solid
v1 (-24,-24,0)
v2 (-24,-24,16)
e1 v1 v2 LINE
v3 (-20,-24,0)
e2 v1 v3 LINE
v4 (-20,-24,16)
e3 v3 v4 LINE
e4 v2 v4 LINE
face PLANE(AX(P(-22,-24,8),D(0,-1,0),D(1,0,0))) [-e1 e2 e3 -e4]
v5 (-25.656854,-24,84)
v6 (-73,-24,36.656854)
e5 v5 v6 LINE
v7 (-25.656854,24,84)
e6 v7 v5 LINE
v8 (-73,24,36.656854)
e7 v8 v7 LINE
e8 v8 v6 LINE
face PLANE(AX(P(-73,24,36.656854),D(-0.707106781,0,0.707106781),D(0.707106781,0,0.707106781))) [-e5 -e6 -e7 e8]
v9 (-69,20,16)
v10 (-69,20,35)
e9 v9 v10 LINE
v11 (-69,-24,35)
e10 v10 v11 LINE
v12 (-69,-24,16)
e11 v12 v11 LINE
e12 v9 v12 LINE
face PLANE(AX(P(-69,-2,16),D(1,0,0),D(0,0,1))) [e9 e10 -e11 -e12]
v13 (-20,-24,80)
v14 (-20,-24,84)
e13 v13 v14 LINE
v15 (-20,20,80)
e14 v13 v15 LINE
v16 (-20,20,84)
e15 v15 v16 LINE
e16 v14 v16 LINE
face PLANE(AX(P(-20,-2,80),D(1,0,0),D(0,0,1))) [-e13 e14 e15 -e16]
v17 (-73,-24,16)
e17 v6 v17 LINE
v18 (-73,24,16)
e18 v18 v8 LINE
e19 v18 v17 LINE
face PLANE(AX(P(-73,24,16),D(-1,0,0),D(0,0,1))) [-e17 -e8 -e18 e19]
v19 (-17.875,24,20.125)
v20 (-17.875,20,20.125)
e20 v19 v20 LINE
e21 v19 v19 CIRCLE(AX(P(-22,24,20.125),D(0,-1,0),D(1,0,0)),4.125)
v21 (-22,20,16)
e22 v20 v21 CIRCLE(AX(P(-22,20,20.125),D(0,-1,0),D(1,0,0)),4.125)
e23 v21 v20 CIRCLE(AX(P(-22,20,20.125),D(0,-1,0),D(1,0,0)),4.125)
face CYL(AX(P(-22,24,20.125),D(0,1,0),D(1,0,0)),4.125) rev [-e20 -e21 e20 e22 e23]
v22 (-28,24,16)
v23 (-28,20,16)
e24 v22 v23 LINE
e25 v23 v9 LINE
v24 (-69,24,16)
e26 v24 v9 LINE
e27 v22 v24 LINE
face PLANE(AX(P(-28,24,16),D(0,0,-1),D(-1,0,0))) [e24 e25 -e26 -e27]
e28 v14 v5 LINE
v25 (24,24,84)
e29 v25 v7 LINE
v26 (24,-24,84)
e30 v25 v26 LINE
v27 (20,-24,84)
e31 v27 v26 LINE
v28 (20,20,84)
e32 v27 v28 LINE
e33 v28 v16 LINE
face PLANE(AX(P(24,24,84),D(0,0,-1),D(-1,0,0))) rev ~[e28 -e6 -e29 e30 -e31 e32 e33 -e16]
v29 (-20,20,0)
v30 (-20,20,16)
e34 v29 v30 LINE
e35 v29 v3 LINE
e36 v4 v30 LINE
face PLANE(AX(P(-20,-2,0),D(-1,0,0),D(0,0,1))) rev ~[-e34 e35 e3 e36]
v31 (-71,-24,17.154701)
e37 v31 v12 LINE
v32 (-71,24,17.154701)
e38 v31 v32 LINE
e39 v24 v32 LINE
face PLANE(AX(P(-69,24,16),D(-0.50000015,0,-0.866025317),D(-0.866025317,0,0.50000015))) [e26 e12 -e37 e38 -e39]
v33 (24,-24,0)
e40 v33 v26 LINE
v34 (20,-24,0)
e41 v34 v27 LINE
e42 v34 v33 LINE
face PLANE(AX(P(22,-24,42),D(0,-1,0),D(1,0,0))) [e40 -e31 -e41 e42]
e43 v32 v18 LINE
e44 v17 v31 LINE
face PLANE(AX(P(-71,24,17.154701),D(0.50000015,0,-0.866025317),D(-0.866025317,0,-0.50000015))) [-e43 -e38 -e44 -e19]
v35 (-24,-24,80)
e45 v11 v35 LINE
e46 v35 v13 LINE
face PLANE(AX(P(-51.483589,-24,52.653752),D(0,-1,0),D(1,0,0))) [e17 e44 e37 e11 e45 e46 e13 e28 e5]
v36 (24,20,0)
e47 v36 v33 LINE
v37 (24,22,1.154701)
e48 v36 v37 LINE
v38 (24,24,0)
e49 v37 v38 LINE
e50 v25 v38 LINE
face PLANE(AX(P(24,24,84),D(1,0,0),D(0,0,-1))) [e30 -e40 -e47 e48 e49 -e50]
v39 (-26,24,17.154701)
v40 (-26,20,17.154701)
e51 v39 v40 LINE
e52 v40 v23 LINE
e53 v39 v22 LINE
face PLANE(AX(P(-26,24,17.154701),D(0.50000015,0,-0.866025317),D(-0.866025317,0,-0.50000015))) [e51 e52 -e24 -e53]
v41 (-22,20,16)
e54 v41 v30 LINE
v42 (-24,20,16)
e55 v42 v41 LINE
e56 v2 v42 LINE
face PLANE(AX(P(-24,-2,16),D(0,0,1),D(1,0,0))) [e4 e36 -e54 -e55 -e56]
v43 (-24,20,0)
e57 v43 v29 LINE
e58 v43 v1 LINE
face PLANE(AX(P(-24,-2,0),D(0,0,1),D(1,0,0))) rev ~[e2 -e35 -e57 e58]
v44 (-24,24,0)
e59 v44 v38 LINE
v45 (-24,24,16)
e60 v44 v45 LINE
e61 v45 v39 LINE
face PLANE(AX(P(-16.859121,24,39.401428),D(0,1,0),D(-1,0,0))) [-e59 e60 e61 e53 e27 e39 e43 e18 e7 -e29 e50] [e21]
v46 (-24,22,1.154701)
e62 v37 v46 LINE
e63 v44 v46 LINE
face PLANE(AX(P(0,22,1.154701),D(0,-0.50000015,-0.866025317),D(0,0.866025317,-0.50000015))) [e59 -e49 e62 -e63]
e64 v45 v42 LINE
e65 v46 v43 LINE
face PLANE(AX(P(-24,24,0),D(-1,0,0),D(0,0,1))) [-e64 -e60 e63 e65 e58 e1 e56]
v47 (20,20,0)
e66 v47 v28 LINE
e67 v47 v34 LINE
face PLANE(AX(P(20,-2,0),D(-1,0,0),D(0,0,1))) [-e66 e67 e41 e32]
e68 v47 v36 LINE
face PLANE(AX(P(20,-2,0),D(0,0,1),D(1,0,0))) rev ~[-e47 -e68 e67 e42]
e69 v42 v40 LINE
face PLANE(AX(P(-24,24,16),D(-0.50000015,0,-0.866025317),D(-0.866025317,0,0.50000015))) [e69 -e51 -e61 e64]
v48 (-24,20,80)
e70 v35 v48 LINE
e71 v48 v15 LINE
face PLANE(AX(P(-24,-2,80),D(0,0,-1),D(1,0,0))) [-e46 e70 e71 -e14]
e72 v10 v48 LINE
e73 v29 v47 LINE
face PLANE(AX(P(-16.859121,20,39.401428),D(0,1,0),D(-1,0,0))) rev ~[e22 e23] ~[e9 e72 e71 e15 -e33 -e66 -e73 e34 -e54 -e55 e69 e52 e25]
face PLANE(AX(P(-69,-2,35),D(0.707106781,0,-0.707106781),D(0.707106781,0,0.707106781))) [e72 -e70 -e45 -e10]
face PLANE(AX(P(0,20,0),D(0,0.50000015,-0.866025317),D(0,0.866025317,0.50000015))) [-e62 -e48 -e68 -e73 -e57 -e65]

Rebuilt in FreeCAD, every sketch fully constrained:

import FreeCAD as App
import Part
import Sketcher

V = App.Vector
Q = App.Units.Quantity

doc = App.newDocument("Part")
params = doc.addObject("Spreadsheet::Sheet", "Params")
for row, (alias, value) in enumerate([
    ("sketch1_width", "4 mm"),
    ("pad1_length", "50 mm"),
    ("sketch2_diameter", "8.25 mm"),
    ("sketch2_width", "48 mm"),
    ("sketch2_width2", "41 mm"),
    ("sketch2_height", "84 mm"),
    ("sketch2_height2", "16 mm"),
    ("pad2_length", "4 mm"),
    ("sketch3_width", "4 mm"),
    ("sketch3_height", "84 mm"),
    ("sketch3_height2", "16 mm"),
    ("sketch3_height3", "19 mm"),
    ("pad3_length", "44 mm"),
], start=1):
    params.set(f"A{row}", alias)
    params.set(f"B{row}", "=" + value)
    params.setAlias(f"B{row}", alias)

body = doc.addObject("PartDesign::Body", "Body")

# Sketch on YZ plane
sketch1 = body.newObject("Sketcher::SketchObject", "Sketch")
sketch1.AttachmentSupport = (doc.getObject("YZ_Plane"), [""])
sketch1.MapMode = "FlatFace"
sketch1.addGeometry([
    Part.LineSegment(V(-22, 1.2, 0), V(-24, 0, 0)),
    Part.LineSegment(V(-24, 0, 0), V(-20, 0, 0)),
    Part.LineSegment(V(-20, 0, 0), V(-22, 1.2, 0)),
], False)
sketch1.addConstraint([
    Sketcher.Constraint("Coincident", 0, 2, 1, 1),
    Sketcher.Constraint("Coincident", 1, 2, 2, 1),
    Sketcher.Constraint("Coincident", 2, 2, 0, 1),
    Sketcher.Constraint("Horizontal", 1),
    Sketcher.Constraint("PointOnObject", 0, 2, -1),
    Sketcher.Constraint("Equal", 0, 2),
    Sketcher.Constraint("DistanceX", 1, 1, 1, 2, Q("4 mm")),
    Sketcher.Constraint("Angle", 0, Q("-149.99999 deg")),
    Sketcher.Constraint("DistanceX", 0, 2, -1, 1, Q("24 mm")),
])
sketch1.setExpression("Constraints[6]", "Params.sketch1_width")
pad1 = body.newObject("PartDesign::Pad", "Pad")
pad1.Profile = sketch1
pad1.setExpression("Length", "Params.pad1_length")
pad1.Midplane = True
body2 = doc.addObject("PartDesign::Body", "Body001")
doc.recompute()

body.Placement = App.Placement(V(0, 44, 0), App.Rotation(V(0, 0, 1), 0))
boolean = body2.newObject("PartDesign::Boolean", "Boolean")
boolean.Type = "Fuse"
boolean.addObjects([body])
body3 = doc.addObject("PartDesign::Body", "Body002")

# Sketch on XZ plane
sketch2 = body3.newObject("Sketcher::SketchObject", "Sketch001")
sketch2.AttachmentSupport = (doc.getObject("XZ_Plane002"), [""])
sketch2.MapMode = "FlatFace"
sketch2.addGeometry([
    Part.LineSegment(V(-24, 0, 0), V(24, 0, 0)),  # 0
    Part.LineSegment(V(24, 0, 0), V(24, 84, 0)),  # 1
    Part.LineSegment(V(24, 84, 0), V(-25.7, 84, 0)),  # 2
    Part.LineSegment(V(-25.7, 84, 0), V(-73, 36.7, 0)),  # 3
    Part.LineSegment(V(-73, 36.7, 0), V(-73, 16, 0)),  # 4
    Part.LineSegment(V(-73, 16, 0), V(-71, 17.2, 0)),  # 5
    Part.LineSegment(V(-71, 17.2, 0), V(-69, 16, 0)),  # 6
    Part.LineSegment(V(-69, 16, 0), V(-28, 16, 0)),  # 7
    Part.LineSegment(V(-28, 16, 0), V(-26, 17.2, 0)),  # 8
    Part.LineSegment(V(-26, 17.2, 0), V(-24, 16, 0)),  # 9
    Part.LineSegment(V(-24, 16, 0), V(-24, 0, 0)),  # 10
    Part.Circle(V(-22, 20.1, 0), V(0, 0, 1), 4.1),  # 11
], False)
sketch2.addConstraint([
    Sketcher.Constraint("Coincident", 0, 2, 1, 1),
    Sketcher.Constraint("Coincident", 1, 2, 2, 1),
    Sketcher.Constraint("Coincident", 2, 2, 3, 1),
    Sketcher.Constraint("Coincident", 3, 2, 4, 1),
    Sketcher.Constraint("Coincident", 4, 2, 5, 1),
    Sketcher.Constraint("Coincident", 5, 2, 6, 1),
    Sketcher.Constraint("Coincident", 6, 2, 7, 1),
    Sketcher.Constraint("Coincident", 7, 2, 8, 1),
    Sketcher.Constraint("Coincident", 8, 2, 9, 1),
    Sketcher.Constraint("Coincident", 9, 2, 10, 1),
    Sketcher.Constraint("Coincident", 10, 2, 0, 1),
    Sketcher.Constraint("Horizontal", 0),
    Sketcher.Constraint("Vertical", 1),
    Sketcher.Constraint("Horizontal", 2),
    Sketcher.Constraint("Vertical", 4),
    Sketcher.Constraint("Horizontal", 7),
    Sketcher.Constraint("Vertical", 10),
    Sketcher.Constraint("Symmetric", 0, 2, 10, 2, -1, 1),
    Sketcher.Constraint("Parallel", 5, 8),
    Sketcher.Constraint("Parallel", 6, 9),
    Sketcher.Constraint("Horizontal", 4, 2, 6, 2),
    Sketcher.Constraint("Horizontal", 5, 2, 8, 2),
    Sketcher.Constraint("Horizontal", 7, 2, 9, 2),
    Sketcher.Constraint("Equal", 5, 6),
    Sketcher.Constraint("Diameter", 11, Q("8.25 mm")),
    Sketcher.Constraint("DistanceX", 0, 1, 0, 2, Q("48 mm")),
    Sketcher.Constraint("DistanceX", 7, 1, 7, 2, Q("41 mm")),
    Sketcher.Constraint("DistanceY", 1, 1, 1, 2, Q("84 mm")),
    Sketcher.Constraint("DistanceY", 10, 2, 10, 1, Q("16 mm")),
    Sketcher.Constraint("Angle", 3, Q("-135 deg")),
    Sketcher.Constraint("Angle", 5, Q("30.00001 deg")),
    Sketcher.Constraint("DistanceX", 11, 3, -1, 1, Q("22 mm")),
    Sketcher.Constraint("DistanceX", 3, 2, -1, 1, Q("73 mm")),
    Sketcher.Constraint("DistanceY", -1, 1, 11, 3, Q("20.125 mm")),
    Sketcher.Constraint("Distance", 3, Q("66.953319 mm")),
])
sketch2.setExpression("Constraints[24]", "Params.sketch2_diameter")
sketch2.setExpression("Constraints[25]", "Params.sketch2_width")
sketch2.setExpression("Constraints[26]", "Params.sketch2_width2")
sketch2.setExpression("Constraints[27]", "Params.sketch2_height")
sketch2.setExpression("Constraints[28]", "Params.sketch2_height2")
pad2 = body3.newObject("PartDesign::Pad", "Pad001")
pad2.Profile = sketch2
pad2.setExpression("Length", "Params.pad2_length")
body4 = doc.addObject("PartDesign::Body", "Body003")
doc.recompute()

body3.Placement = App.Placement(V(0, 24, 0), App.Rotation(V(0, 0, 1), 0))
boolean2 = body4.newObject("PartDesign::Boolean", "Boolean001")
boolean2.Type = "Fuse"
boolean2.addObjects([body3])
doc.recompute()

boolean3 = body4.newObject("PartDesign::Boolean", "Boolean002")
boolean3.Type = "Cut"
boolean3.addObjects([body2])
body5 = doc.addObject("PartDesign::Body", "Body004")
body5.AllowCompound = True

# Sketch on XZ plane
sketch3 = body5.newObject("Sketcher::SketchObject", "Sketch002")
sketch3.AttachmentSupport = (doc.getObject("XZ_Plane004"), [""])
sketch3.MapMode = "FlatFace"
sketch3.addGeometry([
    Part.LineSegment(V(20, 84, 0), V(20, 0, 0)),  # 0
    Part.LineSegment(V(20, 0, 0), V(24, 0, 0)),  # 1
    Part.LineSegment(V(24, 0, 0), V(24, 84, 0)),  # 2
    Part.LineSegment(V(24, 84, 0), V(20, 84, 0)),  # 3
    Part.LineSegment(V(-24, 16, 0), V(-24, 0, 0)),  # 4
    Part.LineSegment(V(-24, 0, 0), V(-20, 0, 0)),  # 5
    Part.LineSegment(V(-20, 0, 0), V(-20, 16, 0)),  # 6
    Part.LineSegment(V(-20, 16, 0), V(-24, 16, 0)),  # 7
    Part.LineSegment(V(-20, 84, 0), V(-25.7, 84, 0)),  # 8
    Part.LineSegment(V(-25.7, 84, 0), V(-73, 36.7, 0)),  # 9
    Part.LineSegment(V(-73, 36.7, 0), V(-73, 16, 0)),  # 10
    Part.LineSegment(V(-73, 16, 0), V(-71, 17.2, 0)),  # 11
    Part.LineSegment(V(-71, 17.2, 0), V(-69, 16, 0)),  # 12
    Part.LineSegment(V(-69, 16, 0), V(-69, 35, 0)),  # 13
    Part.LineSegment(V(-69, 35, 0), V(-24, 80, 0)),  # 14
    Part.LineSegment(V(-24, 80, 0), V(-20, 80, 0)),  # 15
    Part.LineSegment(V(-20, 80, 0), V(-20, 84, 0)),  # 16
], False)
sketch3.addConstraint([
    Sketcher.Constraint("Coincident", 0, 2, 1, 1),
    Sketcher.Constraint("Coincident", 1, 2, 2, 1),
    Sketcher.Constraint("Coincident", 2, 2, 3, 1),
    Sketcher.Constraint("Coincident", 3, 2, 0, 1),
    Sketcher.Constraint("Coincident", 4, 2, 5, 1),
    Sketcher.Constraint("Coincident", 5, 2, 6, 1),
    Sketcher.Constraint("Coincident", 6, 2, 7, 1),
    Sketcher.Constraint("Coincident", 7, 2, 4, 1),
    Sketcher.Constraint("Coincident", 8, 2, 9, 1),
    Sketcher.Constraint("Coincident", 9, 2, 10, 1),
    Sketcher.Constraint("Coincident", 10, 2, 11, 1),
    Sketcher.Constraint("Coincident", 11, 2, 12, 1),
    Sketcher.Constraint("Coincident", 12, 2, 13, 1),
    Sketcher.Constraint("Coincident", 13, 2, 14, 1),
    Sketcher.Constraint("Coincident", 14, 2, 15, 1),
    Sketcher.Constraint("Coincident", 15, 2, 16, 1),
    Sketcher.Constraint("Coincident", 16, 2, 8, 1),
    Sketcher.Constraint("Vertical", 0),
    Sketcher.Constraint("Horizontal", 1),
    Sketcher.Constraint("Vertical", 2),
    Sketcher.Constraint("Horizontal", 3),
    Sketcher.Constraint("Vertical", 4),
    Sketcher.Constraint("Horizontal", 5),
    Sketcher.Constraint("Vertical", 6),
    Sketcher.Constraint("Horizontal", 7),
    Sketcher.Constraint("Horizontal", 8),
    Sketcher.Constraint("Vertical", 10),
    Sketcher.Constraint("Vertical", 13),
    Sketcher.Constraint("Horizontal", 15),
    Sketcher.Constraint("Vertical", 16),
    Sketcher.Constraint("Symmetric", 1, 2, 4, 2, -1, 1),
    Sketcher.Constraint("Symmetric", 0, 2, 5, 2, -2),
    Sketcher.Constraint("Symmetric", 3, 2, 16, 2, -2),
    Sketcher.Constraint("Parallel", 9, 14),
    Sketcher.Constraint("Horizontal", 7, 2, 10, 2),
    Sketcher.Constraint("Horizontal", 10, 2, 12, 2),
    Sketcher.Constraint("Vertical", 7, 2, 14, 2),
    Sketcher.Constraint("Equal", 15, 16),
    Sketcher.Constraint("Equal", 11, 12),
    Sketcher.Constraint("DistanceX", 1, 1, 1, 2, Q("4 mm")),
    Sketcher.Constraint("DistanceY", 0, 2, 0, 1, Q("84 mm")),
    Sketcher.Constraint("DistanceY", 4, 2, 4, 1, Q("16 mm")),
    Sketcher.Constraint("DistanceY", 13, 1, 13, 2, Q("19 mm")),
    Sketcher.Constraint("Angle", 9, Q("-135 deg")),
    Sketcher.Constraint("Angle", 11, Q("30.00001 deg")),
    Sketcher.Constraint("DistanceX", -1, 1, 0, 2, Q("20 mm")),
    Sketcher.Constraint("DistanceX", 9, 2, -1, 1, Q("73 mm")),
    Sketcher.Constraint("Distance", 9, Q("66.953319 mm")),
])
sketch3.setExpression("Constraints[39]", "Params.sketch3_width")
sketch3.setExpression("Constraints[40]", "Params.sketch3_height")
sketch3.setExpression("Constraints[41]", "Params.sketch3_height2")
sketch3.setExpression("Constraints[42]", "Params.sketch3_height3")
pad3 = body5.newObject("PartDesign::Pad", "Pad002")
pad3.Profile = sketch3
pad3.setExpression("Length", "Params.pad3_length")
pad3.Midplane = True
body6 = doc.addObject("PartDesign::Body", "Body005")
body6.AllowCompound = True
doc.recompute()

body5.Placement = App.Placement(V(0, -2, 0), App.Rotation(V(0, 0, 1), 0))
boolean4 = body6.newObject("PartDesign::Boolean", "Boolean003")
boolean4.Type = "Fuse"
boolean4.addObjects([body5])
doc.recompute()

boolean5 = body6.newObject("PartDesign::Boolean", "Boolean004")
boolean5.Type = "Fuse"
boolean5.addObjects([body4])

doc.recompute()
